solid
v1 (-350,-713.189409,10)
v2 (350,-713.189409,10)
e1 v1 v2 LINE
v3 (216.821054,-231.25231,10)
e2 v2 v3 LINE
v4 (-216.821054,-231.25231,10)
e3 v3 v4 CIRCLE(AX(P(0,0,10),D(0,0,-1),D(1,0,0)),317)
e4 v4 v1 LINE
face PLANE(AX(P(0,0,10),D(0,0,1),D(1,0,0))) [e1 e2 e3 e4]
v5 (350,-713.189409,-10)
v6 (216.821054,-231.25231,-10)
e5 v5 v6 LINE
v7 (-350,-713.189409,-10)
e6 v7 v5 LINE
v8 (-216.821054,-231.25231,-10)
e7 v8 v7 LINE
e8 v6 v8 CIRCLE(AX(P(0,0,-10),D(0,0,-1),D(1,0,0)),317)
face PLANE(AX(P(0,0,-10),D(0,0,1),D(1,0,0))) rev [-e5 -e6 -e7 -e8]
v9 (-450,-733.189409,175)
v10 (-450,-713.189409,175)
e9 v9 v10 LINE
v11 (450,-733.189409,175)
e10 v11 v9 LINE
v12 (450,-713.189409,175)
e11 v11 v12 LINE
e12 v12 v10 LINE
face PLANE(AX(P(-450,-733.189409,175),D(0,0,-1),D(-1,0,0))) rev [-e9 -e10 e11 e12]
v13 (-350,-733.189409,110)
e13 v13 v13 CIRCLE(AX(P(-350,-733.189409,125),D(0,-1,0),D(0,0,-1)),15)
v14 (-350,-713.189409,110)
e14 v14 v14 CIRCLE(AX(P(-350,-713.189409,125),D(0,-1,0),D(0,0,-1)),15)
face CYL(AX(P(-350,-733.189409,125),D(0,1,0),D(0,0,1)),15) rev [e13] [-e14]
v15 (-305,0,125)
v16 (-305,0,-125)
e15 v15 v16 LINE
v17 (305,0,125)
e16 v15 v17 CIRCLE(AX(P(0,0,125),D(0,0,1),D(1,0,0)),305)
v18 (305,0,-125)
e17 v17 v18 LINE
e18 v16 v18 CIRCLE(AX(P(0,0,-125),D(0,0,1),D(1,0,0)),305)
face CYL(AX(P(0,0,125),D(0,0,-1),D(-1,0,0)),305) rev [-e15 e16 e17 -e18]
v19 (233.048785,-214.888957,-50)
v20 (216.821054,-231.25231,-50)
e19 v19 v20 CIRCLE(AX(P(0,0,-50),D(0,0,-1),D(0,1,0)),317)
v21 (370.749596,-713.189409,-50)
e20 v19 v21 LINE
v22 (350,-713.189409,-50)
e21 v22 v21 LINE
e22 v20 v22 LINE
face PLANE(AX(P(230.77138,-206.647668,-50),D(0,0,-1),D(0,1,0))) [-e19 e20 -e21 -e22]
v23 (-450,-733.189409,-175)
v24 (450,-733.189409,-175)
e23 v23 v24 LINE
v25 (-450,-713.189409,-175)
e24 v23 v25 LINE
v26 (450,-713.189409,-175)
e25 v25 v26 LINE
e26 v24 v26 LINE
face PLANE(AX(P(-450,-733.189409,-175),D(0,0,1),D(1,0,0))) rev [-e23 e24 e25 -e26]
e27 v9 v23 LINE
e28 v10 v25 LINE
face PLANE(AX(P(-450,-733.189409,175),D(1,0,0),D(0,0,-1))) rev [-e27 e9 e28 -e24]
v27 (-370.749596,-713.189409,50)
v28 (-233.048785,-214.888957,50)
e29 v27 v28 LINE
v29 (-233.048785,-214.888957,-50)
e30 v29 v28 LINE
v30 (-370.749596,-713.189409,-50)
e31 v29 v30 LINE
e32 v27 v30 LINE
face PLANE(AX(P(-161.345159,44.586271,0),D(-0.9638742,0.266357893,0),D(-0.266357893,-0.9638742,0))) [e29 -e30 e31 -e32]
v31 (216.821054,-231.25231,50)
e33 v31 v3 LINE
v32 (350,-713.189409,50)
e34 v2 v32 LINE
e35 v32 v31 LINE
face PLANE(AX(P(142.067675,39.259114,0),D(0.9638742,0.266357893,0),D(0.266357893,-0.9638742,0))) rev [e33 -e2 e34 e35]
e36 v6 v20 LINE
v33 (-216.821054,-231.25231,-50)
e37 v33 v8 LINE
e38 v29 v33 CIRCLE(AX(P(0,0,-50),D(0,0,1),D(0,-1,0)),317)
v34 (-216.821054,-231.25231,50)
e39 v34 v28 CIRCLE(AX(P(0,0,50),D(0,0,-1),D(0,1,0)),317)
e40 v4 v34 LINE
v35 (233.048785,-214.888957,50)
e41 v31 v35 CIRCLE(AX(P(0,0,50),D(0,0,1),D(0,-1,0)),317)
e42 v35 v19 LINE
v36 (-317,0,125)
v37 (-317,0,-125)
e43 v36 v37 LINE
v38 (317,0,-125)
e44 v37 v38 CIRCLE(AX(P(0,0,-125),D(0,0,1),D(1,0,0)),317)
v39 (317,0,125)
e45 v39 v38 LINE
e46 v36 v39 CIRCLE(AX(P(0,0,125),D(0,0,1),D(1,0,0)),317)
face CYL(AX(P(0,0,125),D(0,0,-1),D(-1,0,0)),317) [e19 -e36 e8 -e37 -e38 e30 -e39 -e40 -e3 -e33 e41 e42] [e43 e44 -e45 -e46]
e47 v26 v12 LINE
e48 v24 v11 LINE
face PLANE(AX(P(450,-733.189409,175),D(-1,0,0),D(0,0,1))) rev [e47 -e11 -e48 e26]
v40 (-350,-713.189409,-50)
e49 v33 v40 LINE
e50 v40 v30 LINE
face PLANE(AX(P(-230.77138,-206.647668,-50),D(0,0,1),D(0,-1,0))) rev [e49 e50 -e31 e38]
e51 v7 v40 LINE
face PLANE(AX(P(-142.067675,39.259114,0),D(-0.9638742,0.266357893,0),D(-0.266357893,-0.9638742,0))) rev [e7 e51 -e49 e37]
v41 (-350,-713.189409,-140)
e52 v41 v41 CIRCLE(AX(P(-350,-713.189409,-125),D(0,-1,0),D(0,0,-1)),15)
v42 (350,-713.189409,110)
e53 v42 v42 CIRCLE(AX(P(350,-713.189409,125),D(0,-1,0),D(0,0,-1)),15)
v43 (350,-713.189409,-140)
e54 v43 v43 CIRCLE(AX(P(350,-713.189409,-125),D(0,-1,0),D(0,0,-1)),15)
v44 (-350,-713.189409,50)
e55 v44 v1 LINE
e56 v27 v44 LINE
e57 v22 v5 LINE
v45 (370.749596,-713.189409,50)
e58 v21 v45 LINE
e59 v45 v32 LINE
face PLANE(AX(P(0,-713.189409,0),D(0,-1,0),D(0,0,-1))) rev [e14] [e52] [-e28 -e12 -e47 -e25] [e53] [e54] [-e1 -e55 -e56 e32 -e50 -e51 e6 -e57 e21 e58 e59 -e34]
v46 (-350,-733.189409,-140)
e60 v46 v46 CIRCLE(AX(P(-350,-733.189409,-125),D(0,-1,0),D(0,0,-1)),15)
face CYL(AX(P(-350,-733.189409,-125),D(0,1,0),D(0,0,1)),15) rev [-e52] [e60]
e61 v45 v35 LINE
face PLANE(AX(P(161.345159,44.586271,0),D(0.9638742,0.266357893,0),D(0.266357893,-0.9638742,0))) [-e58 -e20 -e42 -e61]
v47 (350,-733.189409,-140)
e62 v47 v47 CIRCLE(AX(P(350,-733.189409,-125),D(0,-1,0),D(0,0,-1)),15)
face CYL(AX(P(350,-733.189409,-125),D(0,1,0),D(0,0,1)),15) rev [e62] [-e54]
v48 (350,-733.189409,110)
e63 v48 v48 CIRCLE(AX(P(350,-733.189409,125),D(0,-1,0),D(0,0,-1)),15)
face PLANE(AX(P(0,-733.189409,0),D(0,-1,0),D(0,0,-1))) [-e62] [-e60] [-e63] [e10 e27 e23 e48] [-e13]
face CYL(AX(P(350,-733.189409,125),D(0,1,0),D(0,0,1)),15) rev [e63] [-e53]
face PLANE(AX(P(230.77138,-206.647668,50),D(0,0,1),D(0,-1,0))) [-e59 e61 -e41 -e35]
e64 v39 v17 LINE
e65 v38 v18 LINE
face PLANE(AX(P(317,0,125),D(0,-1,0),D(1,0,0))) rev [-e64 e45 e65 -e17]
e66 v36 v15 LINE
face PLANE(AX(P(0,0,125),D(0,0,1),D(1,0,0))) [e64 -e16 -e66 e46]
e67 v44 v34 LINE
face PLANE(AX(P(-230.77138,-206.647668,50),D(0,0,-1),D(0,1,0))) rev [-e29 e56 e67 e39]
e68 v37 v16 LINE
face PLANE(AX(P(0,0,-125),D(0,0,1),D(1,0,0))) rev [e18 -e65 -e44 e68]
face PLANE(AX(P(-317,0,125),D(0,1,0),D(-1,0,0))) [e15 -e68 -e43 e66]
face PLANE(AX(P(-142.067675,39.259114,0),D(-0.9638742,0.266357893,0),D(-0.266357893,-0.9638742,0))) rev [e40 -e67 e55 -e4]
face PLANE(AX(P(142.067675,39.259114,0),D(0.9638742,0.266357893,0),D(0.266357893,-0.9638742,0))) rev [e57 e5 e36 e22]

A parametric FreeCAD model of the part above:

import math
import FreeCAD as App
import Part
import Sketcher


def add_polygon(sketch, points):
    """Adds a closed chain of lines whose ends are joined by coincident constraints."""
    first, n = sketch.GeometryCount, len(points)
    for a, b in zip(points, points[1:] + points[:1]):
        sketch.addGeometry(Part.LineSegment(App.Vector(*a, 0), App.Vector(*b, 0)), False)
    for i in range(n):
        sketch.addConstraint(Sketcher.Constraint("Coincident", first + i, 2, first + (i + 1) % n, 1))

doc = App.newDocument("Part")
body = doc.addObject("PartDesign::Body", "Body")

sketch1 = body.newObject("Sketcher::SketchObject", "Sketch")
sketch1.AttachmentSupport = (doc.getObject("XY_Plane"), [""])
sketch1.MapMode = "FlatFace"
sketch1.addGeometry([
    Part.LineSegment(App.Vector(-305, 0, 0), App.Vector(-317, 0, 0)),
    Part.ArcOfCircle(Part.Circle(App.Vector(0, 0, 0), App.Vector(0, 0, 1), 317), math.radians(180), math.radians(360)),
    Part.LineSegment(App.Vector(317, 0, 0), App.Vector(305, 0, 0)),
    Part.ArcOfCircle(Part.Circle(App.Vector(0, 0, 0), App.Vector(0, 0, 1), 305), math.radians(180), math.radians(360)),
], False)
sketch1.addConstraint([
    Sketcher.Constraint("Coincident", 0, 2, 1, 1),
    Sketcher.Constraint("Coincident", 1, 2, 2, 1),
    Sketcher.Constraint("Coincident", 2, 2, 3, 2),
    Sketcher.Constraint("Coincident", 3, 1, 0, 1),
    Sketcher.Constraint("Horizontal", 0),
    Sketcher.Constraint("Horizontal", 2),
    Sketcher.Constraint("Coincident", 1, 3, -1, 1),
    Sketcher.Constraint("Coincident", 3, 3, -1, 1),
    Sketcher.Constraint("PointOnObject", 0, 2, -1),
    Sketcher.Constraint("PointOnObject", 1, 2, -1),
    Sketcher.Constraint("Radius", 1, 317.0),
    Sketcher.Constraint("Radius", 3, 305.0),
])
pad1 = body.newObject("PartDesign::Pad", "Pad")
pad1.Profile = sketch1
pad1.Length = 250
pad1.Midplane = True

sketch2 = body.newObject("Sketcher::SketchObject", "Sketch001")
sketch2.AttachmentSupport = (doc.getObject("XY_Plane"), [""])
sketch2.MapMode = "FlatFace"
sketch2.addGeometry([
    Part.LineSegment(App.Vector(-216.821054, -231.25231, 0), App.Vector(-350, -713.189409, 0)),
    Part.LineSegment(App.Vector(-350, -713.189409, 0), App.Vector(350, -713.189409, 0)),
    Part.LineSegment(App.Vector(350, -713.189409, 0), App.Vector(216.821054, -231.25231, 0)),
    Part.ArcOfCircle(Part.Circle(App.Vector(0, 0, 0), App.Vector(0, 0, 1), 317), math.radians(-133.155292), math.radians(-46.844708)),
], False)
sketch2.addConstraint([
    Sketcher.Constraint("Coincident", 0, 2, 1, 1),
    Sketcher.Constraint("Coincident", 1, 2, 2, 1),
    Sketcher.Constraint("Coincident", 2, 2, 3, 2),
    Sketcher.Constraint("Coincident", 3, 1, 0, 1),
    Sketcher.Constraint("Horizontal", 1),
    Sketcher.Constraint("Coincident", 3, 3, -1, 1),
    Sketcher.Constraint("Horizontal", 2, 2, 3, 1),
    Sketcher.Constraint("Equal", 0, 2),
    Sketcher.Constraint("Radius", 3, 317.0),
    Sketcher.Constraint("DistanceX", 1, 1, 1, 2, 700.0),
    Sketcher.Constraint("Distance", 0, 500.0),
    Sketcher.Constraint("DistanceY", 1, 2, 2, 2, 481.9371),
])
pad2 = body.newObject("PartDesign::Pad", "Pad001")
pad2.Profile = sketch2
pad2.Length = 20
pad2.Midplane = True

sketch3 = body.newObject("Sketcher::SketchObject", "Sketch002")
sketch3.AttachmentSupport = (doc.getObject("XZ_Plane"), [""])
sketch3.MapMode = "FlatFace"
sketch3.AttachmentOffset = App.Placement(App.Vector(0, 0, 713.189409), App.Rotation())
add_polygon(sketch3, [(-450, 175), (-450, -175), (450, -175), (450, 175)])
sketch3.addGeometry(Part.Circle(App.Vector(-350, -125, 0), App.Vector(0, 0, 1), 15), False)
sketch3.addGeometry(Part.Circle(App.Vector(350, -125, 0), App.Vector(0, 0, 1), 15), False)
sketch3.addGeometry(Part.Circle(App.Vector(-350, 125, 0), App.Vector(0, 0, 1), 15), False)
sketch3.addGeometry(Part.Circle(App.Vector(350, 125, 0), App.Vector(0, 0, 1), 15), False)
sketch3.addConstraint([
    Sketcher.Constraint("Vertical", 0),
    Sketcher.Constraint("Horizontal", 1),
    Sketcher.Constraint("Vertical", 2),
    Sketcher.Constraint("Horizontal", 3),
    Sketcher.Constraint("Equal", 4, 5),
    Sketcher.Constraint("Equal", 5, 6),
    Sketcher.Constraint("Equal", 6, 7),
    Sketcher.Constraint("Symmetric", 5, 3, 6, 3, -1, 1),
    Sketcher.Constraint("Symmetric", 4, 3, 7, 3, -1, 1),
    Sketcher.Constraint("Symmetric", 0, 2, 2, 2, -1, 1),
    Sketcher.Constraint("Symmetric", 4, 3, 5, 3, -2),
    Sketcher.Constraint("Diameter", 4, 30.0),
    Sketcher.Constraint("DistanceX", 1, 1, 1, 2, 900.0),
    Sketcher.Constraint("DistanceY", 0, 2, 0, 1, 350.0),
    Sketcher.Constraint("DistanceX", 4, 3, -1, 1, 350.0),
    Sketcher.Constraint("DistanceY", 4, 3, -1, 1, 125.0),
])
pad3 = body.newObject("PartDesign::Pad", "Pad002")
pad3.Profile = sketch3
pad3.Length = 20

sketch4 = body.newObject("Sketcher::SketchObject", "Sketch003")
sketch4.Placement = App.Placement(App.Vector(-142.067675, 39.259114, 0), App.Rotation(App.Vector(0, 0, 1), App.Vector(0.266357893, 0.9638742, 0), App.Vector(-0.9638742, 0.266357893, 0), "ZXY"))
add_polygon(sketch4, [(-50, -260.650134), (-50, -800.650134), (50, -800.650134), (50, -260.650134)])
sketch4.addConstraint([
    Sketcher.Constraint("Vertical", 0),
    Sketcher.Constraint("Horizontal", 1),
    Sketcher.Constraint("Vertical", 2),
    Sketcher.Constraint("Horizontal", 3),
    Sketcher.Constraint("DistanceX", 1, 1, 1, 2, 100.0),
    Sketcher.Constraint("DistanceY", 0, 2, 0, 1, 540.0),
    Sketcher.Constraint("DistanceX", 0, 2, -1, 1, 50.0),
    Sketcher.Constraint("DistanceY", 0, 2, -1, 1, 800.650134),
])
pad4 = body.newObject("PartDesign::Pad", "Pad003")
pad4.Profile = sketch4
pad4.Length = 20
doc.recompute()

mirrored = body.newObject("PartDesign::Mirrored", "Mirrored")
mirrored.Originals = [pad4]
mirrored.MirrorPlane = (doc.getObject("YZ_Plane"), [""])
body.Tip = mirrored

sketch5 = body.newObject("Sketcher::SketchObject", "Sketch004")
sketch5.AttachmentSupport = (doc.getObject("XY_Plane"), [""])
sketch5.MapMode = "FlatFace"
sketch5.AttachmentOffset = App.Placement(App.Vector(0, 0, 551), App.Rotation())
sketch5.addGeometry([
    Part.LineSegment(App.Vector(-305, 0, 0), App.Vector(305, 0, 0)),
    Part.ArcOfCircle(Part.Circle(App.Vector(0, 0, 0), App.Vector(0, 0, 1), 305), math.radians(180), math.radians(360)),
], False)
sketch5.addConstraint([
    Sketcher.Constraint("Coincident", 0, 1, 1, 1),
    Sketcher.Constraint("Coincident", 1, 2, 0, 2),
    Sketcher.Constraint("Horizontal", 0),
    Sketcher.Constraint("Coincident", 1, 3, -1, 1),
    Sketcher.Constraint("PointOnObject", 0, 1, -1),
    Sketcher.Constraint("Radius", 1, 305.0),
])
pocket1 = body.newObject("PartDesign::Pocket", "Pocket")
pocket1.Profile = sketch5
pocket1.Length = 676

doc.recompute()
